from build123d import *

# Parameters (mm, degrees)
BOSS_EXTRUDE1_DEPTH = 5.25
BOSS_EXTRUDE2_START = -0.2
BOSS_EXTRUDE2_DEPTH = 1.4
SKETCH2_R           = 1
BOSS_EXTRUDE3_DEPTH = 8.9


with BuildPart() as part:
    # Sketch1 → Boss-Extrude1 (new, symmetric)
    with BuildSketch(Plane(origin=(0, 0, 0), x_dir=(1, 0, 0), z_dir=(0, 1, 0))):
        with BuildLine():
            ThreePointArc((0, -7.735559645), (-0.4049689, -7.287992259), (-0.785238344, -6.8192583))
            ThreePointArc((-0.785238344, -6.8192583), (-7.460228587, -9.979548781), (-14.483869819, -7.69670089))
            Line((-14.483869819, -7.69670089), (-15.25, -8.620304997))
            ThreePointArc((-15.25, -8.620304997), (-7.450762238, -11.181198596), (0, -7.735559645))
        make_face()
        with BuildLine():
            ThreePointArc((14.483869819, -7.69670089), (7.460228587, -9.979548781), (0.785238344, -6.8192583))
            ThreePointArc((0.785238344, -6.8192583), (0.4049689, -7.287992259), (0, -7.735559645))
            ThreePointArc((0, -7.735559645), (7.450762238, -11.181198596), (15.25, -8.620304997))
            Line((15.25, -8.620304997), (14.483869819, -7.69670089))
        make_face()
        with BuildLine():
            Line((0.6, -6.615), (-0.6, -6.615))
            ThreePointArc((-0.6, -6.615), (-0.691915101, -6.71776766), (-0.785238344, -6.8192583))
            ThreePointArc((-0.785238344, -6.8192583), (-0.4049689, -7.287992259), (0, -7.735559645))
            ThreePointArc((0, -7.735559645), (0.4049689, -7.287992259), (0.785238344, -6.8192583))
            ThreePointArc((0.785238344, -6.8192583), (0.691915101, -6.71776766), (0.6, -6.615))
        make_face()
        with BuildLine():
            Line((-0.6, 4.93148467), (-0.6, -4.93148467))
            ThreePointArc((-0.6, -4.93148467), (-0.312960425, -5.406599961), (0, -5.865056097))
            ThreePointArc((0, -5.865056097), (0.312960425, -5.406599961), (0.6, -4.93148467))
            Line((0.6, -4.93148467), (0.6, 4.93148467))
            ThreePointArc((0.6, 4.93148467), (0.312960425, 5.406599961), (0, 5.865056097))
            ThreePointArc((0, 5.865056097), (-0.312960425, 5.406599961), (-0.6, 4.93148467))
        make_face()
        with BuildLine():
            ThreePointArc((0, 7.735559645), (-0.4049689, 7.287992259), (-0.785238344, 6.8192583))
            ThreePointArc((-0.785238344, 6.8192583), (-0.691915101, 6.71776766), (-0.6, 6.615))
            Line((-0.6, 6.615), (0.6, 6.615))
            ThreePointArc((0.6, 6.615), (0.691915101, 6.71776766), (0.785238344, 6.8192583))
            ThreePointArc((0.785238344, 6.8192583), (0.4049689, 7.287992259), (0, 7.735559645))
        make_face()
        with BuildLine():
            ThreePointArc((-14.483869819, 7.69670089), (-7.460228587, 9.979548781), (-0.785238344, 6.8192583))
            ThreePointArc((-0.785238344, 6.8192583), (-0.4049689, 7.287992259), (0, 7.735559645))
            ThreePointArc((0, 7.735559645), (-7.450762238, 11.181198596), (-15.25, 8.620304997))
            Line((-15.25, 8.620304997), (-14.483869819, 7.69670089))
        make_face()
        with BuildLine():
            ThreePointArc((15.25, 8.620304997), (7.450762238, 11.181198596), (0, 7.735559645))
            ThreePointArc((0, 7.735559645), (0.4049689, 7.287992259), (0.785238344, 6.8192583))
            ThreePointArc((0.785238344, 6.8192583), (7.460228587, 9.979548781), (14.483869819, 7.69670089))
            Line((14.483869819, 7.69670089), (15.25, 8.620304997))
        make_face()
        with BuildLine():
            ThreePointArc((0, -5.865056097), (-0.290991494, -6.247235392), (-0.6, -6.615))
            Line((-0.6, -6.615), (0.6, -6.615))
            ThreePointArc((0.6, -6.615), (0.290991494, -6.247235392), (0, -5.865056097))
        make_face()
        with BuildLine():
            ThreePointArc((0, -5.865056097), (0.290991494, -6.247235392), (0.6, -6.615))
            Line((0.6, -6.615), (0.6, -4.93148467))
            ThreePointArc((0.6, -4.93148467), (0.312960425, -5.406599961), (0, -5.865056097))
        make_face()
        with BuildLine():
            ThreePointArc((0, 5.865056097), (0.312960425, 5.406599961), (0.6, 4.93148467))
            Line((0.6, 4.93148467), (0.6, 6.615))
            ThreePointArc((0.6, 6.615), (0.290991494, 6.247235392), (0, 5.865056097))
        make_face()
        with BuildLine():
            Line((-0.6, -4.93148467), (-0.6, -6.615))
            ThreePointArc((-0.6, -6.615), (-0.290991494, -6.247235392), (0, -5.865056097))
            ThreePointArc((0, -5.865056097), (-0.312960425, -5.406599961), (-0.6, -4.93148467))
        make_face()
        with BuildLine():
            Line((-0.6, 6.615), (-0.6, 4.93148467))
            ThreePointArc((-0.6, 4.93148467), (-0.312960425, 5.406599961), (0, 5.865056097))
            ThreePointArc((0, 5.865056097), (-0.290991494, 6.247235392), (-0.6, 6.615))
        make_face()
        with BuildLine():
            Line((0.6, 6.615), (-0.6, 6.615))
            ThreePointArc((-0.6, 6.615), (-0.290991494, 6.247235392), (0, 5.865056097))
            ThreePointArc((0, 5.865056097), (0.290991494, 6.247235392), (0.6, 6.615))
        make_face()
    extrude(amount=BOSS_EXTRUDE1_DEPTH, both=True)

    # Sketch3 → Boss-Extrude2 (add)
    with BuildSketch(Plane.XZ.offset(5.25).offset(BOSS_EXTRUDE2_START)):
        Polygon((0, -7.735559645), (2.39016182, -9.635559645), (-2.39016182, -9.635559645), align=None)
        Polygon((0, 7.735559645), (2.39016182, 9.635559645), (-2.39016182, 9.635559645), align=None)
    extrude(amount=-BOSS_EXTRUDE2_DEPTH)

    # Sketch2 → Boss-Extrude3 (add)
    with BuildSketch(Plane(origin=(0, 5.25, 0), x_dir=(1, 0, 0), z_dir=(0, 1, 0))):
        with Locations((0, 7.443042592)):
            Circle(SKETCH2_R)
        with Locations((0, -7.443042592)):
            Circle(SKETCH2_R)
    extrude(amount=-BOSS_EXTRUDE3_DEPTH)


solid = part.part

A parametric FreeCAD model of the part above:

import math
import FreeCAD as App
import Part
import Sketcher

V = App.Vector


def add_polygon(sketch, points):
    """Adds a closed chain of lines whose ends are joined by coincident constraints."""
    first, n = sketch.GeometryCount, len(points)
    for a, b in zip(points, points[1:] + points[:1]):
        sketch.addGeometry(Part.LineSegment(App.Vector(*a, 0), App.Vector(*b, 0)), False)
    for i in range(n):
        sketch.addConstraint(Sketcher.Constraint("Coincident", first + i, 2, first + (i + 1) % n, 1))

doc = App.newDocument("Part")
body = doc.addObject("PartDesign::Body", "Body")

sketch1 = body.newObject("Sketcher::SketchObject", "Sketch")
sketch1.AttachmentSupport = (doc.getObject("XZ_Plane"), [""])
sketch1.MapMode = "FlatFace"
sketch1.addGeometry(Part.ArcOfCircle(Part.Circle(V(-8.099448, -0.000003, 0), V(0, 0, 1), 9.999995), math.radians(-42.994319), math.radians(-41.414372)), False)
sketch1.addGeometry(Part.LineSegment(V(-0.6, -6.615, 0), V(-0.6, 6.615, 0)), False)
sketch1.addGeometry(Part.ArcOfCircle(Part.Circle(V(-8.099448, 0.000003, 0), V(0, 0, 1), 9.999995), math.radians(41.414372), math.radians(42.994319)), False)
sketch1.addGeometry(Part.ArcOfCircle(Part.Circle(V(-8.099452, 0, 0), V(0, 0, 1), 10), math.radians(42.994318), math.radians(129.675728)), False)
sketch1.addGeometry(Part.LineSegment(V(-14.48387, 7.696701, 0), V(-15.25, 8.620305, 0)), False)
sketch1.addGeometry(Part.ArcOfCircle(Part.Circle(V(-8.099452, 0, 0), V(0, 0, 1), 11.2), math.radians(43.683562), math.radians(129.675728)), False)
sketch1.addGeometry(Part.ArcOfCircle(Part.Circle(V(8.099452, 0, 0), V(0, 0, 1), 11.2), math.radians(50.324272), math.radians(136.316438)), False)
sketch1.addGeometry(Part.LineSegment(V(15.25, 8.620305, 0), V(14.48387, 7.696701, 0)), False)
sketch1.addGeometry(Part.ArcOfCircle(Part.Circle(V(8.099452, 0, 0), V(0, 0, 1), 10), math.radians(50.324272), math.radians(137.005682)), False)
sketch1.addGeometry(Part.ArcOfCircle(Part.Circle(V(8.099448, 0.000003, 0), V(0, 0, 1), 9.999995), math.radians(137.005681), math.radians(138.585628)), False)
sketch1.addGeometry(Part.LineSegment(V(0.6, 6.615, 0), V(0.6, -6.615, 0)), False)
sketch1.addGeometry(Part.ArcOfCircle(Part.Circle(V(8.099448, -0.000003, 0), V(0, 0, 1), 9.999995), math.radians(-138.585628), math.radians(-137.005681)), False)
sketch1.addGeometry(Part.ArcOfCircle(Part.Circle(V(8.099452, 0, 0), V(0, 0, 1), 10), math.radians(-137.005682), math.radians(-50.324272)), False)
sketch1.addGeometry(Part.LineSegment(V(14.48387, -7.696701, 0), V(15.25, -8.620305, 0)), False)
sketch1.addGeometry(Part.ArcOfCircle(Part.Circle(V(8.099452, 0, 0), V(0, 0, 1), 11.2), math.radians(-136.316438), math.radians(-50.324272)), False)
sketch1.addGeometry(Part.ArcOfCircle(Part.Circle(V(-8.099452, 0, 0), V(0, 0, 1), 11.2), math.radians(-129.675728), math.radians(-43.683562)), False)
sketch1.addGeometry(Part.LineSegment(V(-15.25, -8.620305, 0), V(-14.48387, -7.696701, 0)), False)
sketch1.addGeometry(Part.ArcOfCircle(Part.Circle(V(-8.099452, 0, 0), V(0, 0, 1), 10), math.radians(-129.675728), math.radians(-42.994318)), False)
sketch1.addConstraint(Sketcher.Constraint("Coincident", 0, 2, 1, 1))
sketch1.addConstraint(Sketcher.Constraint("Coincident", 1, 2, 2, 1))
sketch1.addConstraint(Sketcher.Constraint("Tangent", 2, 2, 3, 1))
sketch1.addConstraint(Sketcher.Constraint("Coincident", 3, 2, 4, 1))
sketch1.addConstraint(Sketcher.Constraint("Coincident", 4, 2, 5, 2))
sketch1.addConstraint(Sketcher.Constraint("Coincident", 5, 1, 6, 2))
sketch1.addConstraint(Sketcher.Constraint("Coincident", 6, 1, 7, 1))
sketch1.addConstraint(Sketcher.Constraint("Coincident", 7, 2, 8, 1))
sketch1.addConstraint(Sketcher.Constraint("Tangent", 8, 2, 9, 1))
sketch1.addConstraint(Sketcher.Constraint("Coincident", 9, 2, 10, 1))
sketch1.addConstraint(Sketcher.Constraint("Coincident", 10, 2, 11, 1))
sketch1.addConstraint(Sketcher.Constraint("Tangent", 11, 2, 12, 1))
sketch1.addConstraint(Sketcher.Constraint("Coincident", 12, 2, 13, 1))
sketch1.addConstraint(Sketcher.Constraint("Coincident", 13, 2, 14, 2))
sketch1.addConstraint(Sketcher.Constraint("Coincident", 14, 1, 15, 2))
sketch1.addConstraint(Sketcher.Constraint("Coincident", 15, 1, 16, 1))
sketch1.addConstraint(Sketcher.Constraint("Coincident", 16, 2, 17, 1))
sketch1.addConstraint(Sketcher.Constraint("Tangent", 17, 2, 0, 1))
sketch1.addConstraint(Sketcher.Constraint("Vertical", 1))
sketch1.addConstraint(Sketcher.Constraint("Vertical", 10))
sketch1.addConstraint(Sketcher.Constraint("Coincident", 2, 3, 0, 3))
sketch1.addConstraint(Sketcher.Constraint("Coincident", 5, 3, 0, 3))
sketch1.addConstraint(Sketcher.Constraint("Coincident", 8, 3, 6, 3))
sketch1.addConstraint(Sketcher.Constraint("Coincident", 11, 3, 6, 3))
sketch1.addConstraint(Sketcher.Constraint("Coincident", 14, 3, 6, 3))
sketch1.addConstraint(Sketcher.Constraint("Coincident", 15, 3, 0, 3))
sketch1.addConstraint(Sketcher.Constraint("Equal", 0, 2))
sketch1.addConstraint(Sketcher.Constraint("Equal", 5, 6))
sketch1.addConstraint(Sketcher.Constraint("Equal", 3, 8))
sketch1.addConstraint(Sketcher.Constraint("Equal", 2, 9))
sketch1.addConstraint(Sketcher.Constraint("Equal", 9, 11))
sketch1.addConstraint(Sketcher.Constraint("Equal", 8, 12))
sketch1.addConstraint(Sketcher.Constraint("Equal", 6, 14))
sketch1.addConstraint(Sketcher.Constraint("Equal", 14, 15))
sketch1.addConstraint(Sketcher.Constraint("Equal", 12, 17))
sketch1.addConstraint(Sketcher.Constraint("Symmetric", 0, 3, 6, 3, -1, 1))
sketch1.addConstraint(Sketcher.Constraint("Symmetric", 0, 2, 9, 2, -1, 1))
sketch1.addConstraint(Sketcher.Constraint("Symmetric", 4, 2, 6, 1, -2))
sketch1.addConstraint(Sketcher.Constraint("Parallel", 4, 13))
sketch1.addConstraint(Sketcher.Constraint("Parallel", 7, 16))
sketch1.addConstraint(Sketcher.Constraint("Horizontal", 3, 2, 7, 2))
sketch1.addConstraint(Sketcher.Constraint("Horizontal", 2, 2, 8, 2))
sketch1.addConstraint(Sketcher.Constraint("Horizontal", 13, 2, 15, 1))
sketch1.addConstraint(Sketcher.Constraint("Horizontal", 11, 2, 17, 2))
sketch1.addConstraint(Sketcher.Constraint("Vertical", 8, 2, 11, 2))
sketch1.addConstraint(Sketcher.Constraint("Vertical", 7, 2, 12, 2))
sketch1.addConstraint(Sketcher.Constraint("Radius", 3, 10.0))
sketch1.addConstraint(Sketcher.Constraint("Radius", 5, 11.2))
sketch1.addConstraint(Sketcher.Constraint("DistanceY", 1, 1, 1, 2, 13.23))
sketch1.addConstraint(Sketcher.Constraint("DistanceX", 0, 2, -1, 1, 0.6))
sketch1.addConstraint(Sketcher.Constraint("DistanceX", 4, 2, -1, 1, 15.25))
sketch1.addConstraint(Sketcher.Constraint("DistanceY", -1, 1, 3, 2, 7.696701))
sketch1.addConstraint(Sketcher.Constraint("DistanceY", 2, 2, 5, 1, 0.916301))
pad1 = body.newObject("PartDesign::Pad", "Pad")
pad1.Profile = sketch1
pad1.Length = 10.5
pad1.Midplane = True

sketch2 = body.newObject("Sketcher::SketchObject", "Sketch001")
sketch2.AttachmentSupport = (doc.getObject("XZ_Plane"), [""])
sketch2.MapMode = "FlatFace"
sketch2.AttachmentOffset = App.Placement(V(0, 0, 5.05), App.Rotation())
add_polygon(sketch2, [(2.390162, -9.63556), (0, -7.73556), (-2.390162, -9.63556)])
add_polygon(sketch2, [(0, 7.73556), (2.390162, 9.63556), (-2.390162, 9.63556)])
sketch2.addConstraint(Sketcher.Constraint("Horizontal", 2))
sketch2.addConstraint(Sketcher.Constraint("Horizontal", 4))
sketch2.addConstraint(Sketcher.Constraint("Symmetric", 1, 2, 3, 2, -1, 1))
sketch2.addConstraint(Sketcher.Constraint("Symmetric", 0, 2, 5, 2, -1, 1))
sketch2.addConstraint(Sketcher.Constraint("PointOnObject", 0, 2, -2))
sketch2.addConstraint(Sketcher.Constraint("Parallel", 0, 5))
sketch2.addConstraint(Sketcher.Constraint("Vertical", 2, 2, 3, 2))
sketch2.addConstraint(Sketcher.Constraint("DistanceY", 1, 2, 0, 2, 1.9))
sketch2.addConstraint(Sketcher.Constraint("Distance", 0, 3.053338))
sketch2.addConstraint(Sketcher.Constraint("DistanceY", 0, 2, -1, 1, 7.73556))
pad2 = body.newObject("PartDesign::Pad", "Pad001")
pad2.Profile = sketch2
pad2.Length = 1.4
pad2.Reversed = True

sketch3 = body.newObject("Sketcher::SketchObject", "Sketch002")
sketch3.AttachmentSupport = (doc.getObject("XZ_Plane"), [""])
sketch3.MapMode = "FlatFace"
sketch3.AttachmentOffset = App.Placement(V(0, 0, -5.25), App.Rotation())
sketch3.addGeometry(Part.Circle(V(0, -7.443043, 0), V(0, 0, 1), 1), False)
sketch3.addGeometry(Part.Circle(V(0, 7.443043, 0), V(0, 0, 1), 1), False)
sketch3.addConstraint(Sketcher.Constraint("Equal", 0, 1))
sketch3.addConstraint(Sketcher.Constraint("Symmetric", 0, 3, 1, 3, -1, 1))
sketch3.addConstraint(Sketcher.Constraint("PointOnObject", 0, 3, -2))
sketch3.addConstraint(Sketcher.Constraint("Diameter", 0, 2.0))
sketch3.addConstraint(Sketcher.Constraint("DistanceY", 0, 3, -1, 1, 7.443043))
pad3 = body.newObject("PartDesign::Pad", "Pad002")
pad3.Profile = sketch3
pad3.Length = 8.9

doc.recompute()
